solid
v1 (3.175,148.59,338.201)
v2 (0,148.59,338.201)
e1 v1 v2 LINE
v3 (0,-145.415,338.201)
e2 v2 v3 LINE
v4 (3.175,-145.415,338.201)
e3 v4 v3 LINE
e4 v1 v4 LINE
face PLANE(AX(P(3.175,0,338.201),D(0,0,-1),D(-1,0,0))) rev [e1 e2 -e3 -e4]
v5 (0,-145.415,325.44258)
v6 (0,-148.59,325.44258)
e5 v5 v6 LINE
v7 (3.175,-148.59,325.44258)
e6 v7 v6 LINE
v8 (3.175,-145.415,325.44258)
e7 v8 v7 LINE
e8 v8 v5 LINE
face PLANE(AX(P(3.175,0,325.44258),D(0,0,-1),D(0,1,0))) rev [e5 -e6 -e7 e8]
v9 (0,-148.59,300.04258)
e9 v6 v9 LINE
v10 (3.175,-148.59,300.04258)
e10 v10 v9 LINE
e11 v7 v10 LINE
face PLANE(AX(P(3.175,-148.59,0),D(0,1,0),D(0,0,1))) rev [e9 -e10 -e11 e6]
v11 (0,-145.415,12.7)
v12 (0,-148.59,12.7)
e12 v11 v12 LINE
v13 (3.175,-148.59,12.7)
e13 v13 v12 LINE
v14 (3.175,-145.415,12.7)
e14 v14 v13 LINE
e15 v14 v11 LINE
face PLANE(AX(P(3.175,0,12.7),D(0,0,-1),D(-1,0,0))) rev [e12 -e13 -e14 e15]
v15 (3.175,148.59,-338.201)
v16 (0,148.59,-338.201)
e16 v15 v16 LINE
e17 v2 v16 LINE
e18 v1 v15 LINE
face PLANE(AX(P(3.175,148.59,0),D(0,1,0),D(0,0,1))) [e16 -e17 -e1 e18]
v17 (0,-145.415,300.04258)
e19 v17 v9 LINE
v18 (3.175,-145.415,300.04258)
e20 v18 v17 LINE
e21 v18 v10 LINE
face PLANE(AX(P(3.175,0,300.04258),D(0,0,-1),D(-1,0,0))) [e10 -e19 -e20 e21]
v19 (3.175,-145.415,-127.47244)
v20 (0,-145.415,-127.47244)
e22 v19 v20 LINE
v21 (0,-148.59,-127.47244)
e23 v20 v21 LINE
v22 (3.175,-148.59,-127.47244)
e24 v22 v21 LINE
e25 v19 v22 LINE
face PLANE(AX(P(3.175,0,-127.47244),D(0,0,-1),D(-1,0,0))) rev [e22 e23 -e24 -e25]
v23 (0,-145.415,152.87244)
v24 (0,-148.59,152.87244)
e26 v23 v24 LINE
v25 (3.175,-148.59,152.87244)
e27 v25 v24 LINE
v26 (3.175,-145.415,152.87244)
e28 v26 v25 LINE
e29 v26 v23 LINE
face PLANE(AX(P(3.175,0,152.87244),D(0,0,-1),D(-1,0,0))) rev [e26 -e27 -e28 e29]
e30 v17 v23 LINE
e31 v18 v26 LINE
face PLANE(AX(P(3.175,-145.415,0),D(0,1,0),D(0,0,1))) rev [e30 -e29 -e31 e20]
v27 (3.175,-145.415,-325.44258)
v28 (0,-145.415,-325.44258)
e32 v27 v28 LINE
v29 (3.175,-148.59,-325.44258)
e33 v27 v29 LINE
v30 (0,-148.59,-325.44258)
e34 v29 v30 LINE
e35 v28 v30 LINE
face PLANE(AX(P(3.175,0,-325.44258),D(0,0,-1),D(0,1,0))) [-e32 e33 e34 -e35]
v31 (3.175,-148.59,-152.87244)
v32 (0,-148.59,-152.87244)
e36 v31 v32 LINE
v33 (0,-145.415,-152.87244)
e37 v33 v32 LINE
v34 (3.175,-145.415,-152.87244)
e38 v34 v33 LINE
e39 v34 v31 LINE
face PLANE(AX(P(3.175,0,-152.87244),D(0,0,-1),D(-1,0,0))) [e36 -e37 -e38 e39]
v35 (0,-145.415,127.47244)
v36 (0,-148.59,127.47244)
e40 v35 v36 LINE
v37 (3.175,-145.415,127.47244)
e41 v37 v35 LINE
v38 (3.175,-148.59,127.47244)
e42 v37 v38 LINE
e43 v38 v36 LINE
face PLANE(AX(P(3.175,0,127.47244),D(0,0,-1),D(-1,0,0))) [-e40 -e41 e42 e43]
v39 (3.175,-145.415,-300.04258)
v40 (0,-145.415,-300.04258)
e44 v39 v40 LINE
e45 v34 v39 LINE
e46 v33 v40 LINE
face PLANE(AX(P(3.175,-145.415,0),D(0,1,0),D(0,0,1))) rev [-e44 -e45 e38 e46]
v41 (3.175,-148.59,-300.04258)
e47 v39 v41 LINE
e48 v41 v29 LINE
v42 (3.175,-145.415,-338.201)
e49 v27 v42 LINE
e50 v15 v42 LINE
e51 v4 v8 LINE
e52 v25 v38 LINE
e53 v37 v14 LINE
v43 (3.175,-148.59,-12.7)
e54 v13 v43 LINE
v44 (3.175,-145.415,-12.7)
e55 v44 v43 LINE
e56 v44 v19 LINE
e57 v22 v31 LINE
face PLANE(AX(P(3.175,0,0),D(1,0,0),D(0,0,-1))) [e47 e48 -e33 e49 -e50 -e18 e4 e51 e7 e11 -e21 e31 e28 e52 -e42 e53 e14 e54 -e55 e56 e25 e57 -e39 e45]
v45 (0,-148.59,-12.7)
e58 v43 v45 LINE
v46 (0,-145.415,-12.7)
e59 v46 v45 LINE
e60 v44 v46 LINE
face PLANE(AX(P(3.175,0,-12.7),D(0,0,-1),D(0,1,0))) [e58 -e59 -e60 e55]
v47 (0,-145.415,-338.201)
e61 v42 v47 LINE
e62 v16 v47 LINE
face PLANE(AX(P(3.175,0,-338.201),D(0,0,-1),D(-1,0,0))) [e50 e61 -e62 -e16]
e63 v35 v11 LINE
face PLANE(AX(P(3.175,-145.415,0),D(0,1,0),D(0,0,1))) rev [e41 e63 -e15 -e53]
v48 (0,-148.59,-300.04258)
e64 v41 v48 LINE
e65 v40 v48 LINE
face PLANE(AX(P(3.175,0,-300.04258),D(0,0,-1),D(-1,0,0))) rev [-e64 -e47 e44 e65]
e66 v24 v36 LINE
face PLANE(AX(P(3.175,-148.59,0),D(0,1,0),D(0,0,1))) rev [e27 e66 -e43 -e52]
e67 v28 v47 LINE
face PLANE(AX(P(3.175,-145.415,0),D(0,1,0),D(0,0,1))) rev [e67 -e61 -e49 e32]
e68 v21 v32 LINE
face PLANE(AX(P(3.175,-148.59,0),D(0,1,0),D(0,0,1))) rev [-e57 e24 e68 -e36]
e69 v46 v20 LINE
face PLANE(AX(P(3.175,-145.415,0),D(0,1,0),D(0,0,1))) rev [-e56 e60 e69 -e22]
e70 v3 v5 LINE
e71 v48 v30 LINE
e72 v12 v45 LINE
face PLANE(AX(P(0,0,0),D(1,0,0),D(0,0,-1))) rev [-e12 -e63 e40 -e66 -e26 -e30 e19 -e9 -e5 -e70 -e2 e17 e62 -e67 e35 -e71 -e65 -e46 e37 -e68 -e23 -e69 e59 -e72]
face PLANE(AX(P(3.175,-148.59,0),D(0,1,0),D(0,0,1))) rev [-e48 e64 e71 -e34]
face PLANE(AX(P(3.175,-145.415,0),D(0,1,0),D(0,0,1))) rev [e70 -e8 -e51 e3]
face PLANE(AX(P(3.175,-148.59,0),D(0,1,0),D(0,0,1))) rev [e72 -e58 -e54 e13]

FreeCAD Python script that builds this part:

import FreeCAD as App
import Part
import Sketcher
from FreeCAD import Vector
Q = App.Units.Quantity

doc = App.newDocument("Part")
body = doc.addObject("PartDesign::Body", "Body")

sketch1 = body.newObject("Sketcher::SketchObject", "Sketch")
sketch1.AttachmentSupport = (doc.getObject("YZ_Plane"), [""])
sketch1.MapMode = "FlatFace"
sketch1.addGeometry(Part.LineSegment(Vector(-145.415, -300.04258, 0), Vector(-148.59, -300.04258, 0)), False)
sketch1.addGeometry(Part.LineSegment(Vector(-148.59, -300.04258, 0), Vector(-148.59, -325.44258, 0)), False)
sketch1.addGeometry(Part.LineSegment(Vector(-148.59, -325.44258, 0), Vector(-145.415, -325.44258, 0)), False)
sketch1.addGeometry(Part.LineSegment(Vector(-145.415, -325.44258, 0), Vector(-145.415, -338.201, 0)), False)
sketch1.addGeometry(Part.LineSegment(Vector(-145.415, -338.201, 0), Vector(148.59, -338.201, 0)), False)
sketch1.addGeometry(Part.LineSegment(Vector(148.59, -338.201, 0), Vector(148.59, 338.201, 0)), False)
sketch1.addGeometry(Part.LineSegment(Vector(148.59, 338.201, 0), Vector(-145.415, 338.201, 0)), False)
sketch1.addGeometry(Part.LineSegment(Vector(-145.415, 338.201, 0), Vector(-145.415, 325.44258, 0)), False)
sketch1.addGeometry(Part.LineSegment(Vector(-145.415, 325.44258, 0), Vector(-148.59, 325.44258, 0)), False)
sketch1.addGeometry(Part.LineSegment(Vector(-148.59, 325.44258, 0), Vector(-148.59, 300.04258, 0)), False)
sketch1.addGeometry(Part.LineSegment(Vector(-148.59, 300.04258, 0), Vector(-145.415, 300.04258, 0)), False)
sketch1.addGeometry(Part.LineSegment(Vector(-145.415, 300.04258, 0), Vector(-145.415, 152.87244, 0)), False)
sketch1.addGeometry(Part.LineSegment(Vector(-145.415, 152.87244, 0), Vector(-148.59, 152.87244, 0)), False)
sketch1.addGeometry(Part.LineSegment(Vector(-148.59, 152.87244, 0), Vector(-148.59, 127.47244, 0)), False)
sketch1.addGeometry(Part.LineSegment(Vector(-148.59, 127.47244, 0), Vector(-145.415, 127.47244, 0)), False)
sketch1.addGeometry(Part.LineSegment(Vector(-145.415, 127.47244, 0), Vector(-145.415, 12.7, 0)), False)
sketch1.addGeometry(Part.LineSegment(Vector(-145.415, 12.7, 0), Vector(-148.59, 12.7, 0)), False)
sketch1.addGeometry(Part.LineSegment(Vector(-148.59, 12.7, 0), Vector(-148.59, -12.7, 0)), False)
sketch1.addGeometry(Part.LineSegment(Vector(-148.59, -12.7, 0), Vector(-145.415, -12.7, 0)), False)
sketch1.addGeometry(Part.LineSegment(Vector(-145.415, -12.7, 0), Vector(-145.415, -127.47244, 0)), False)
sketch1.addGeometry(Part.LineSegment(Vector(-145.415, -127.47244, 0), Vector(-148.59, -127.47244, 0)), False)
sketch1.addGeometry(Part.LineSegment(Vector(-148.59, -127.47244, 0), Vector(-148.59, -152.87244, 0)), False)
sketch1.addGeometry(Part.LineSegment(Vector(-148.59, -152.87244, 0), Vector(-145.415, -152.87244, 0)), False)
sketch1.addGeometry(Part.LineSegment(Vector(-145.415, -152.87244, 0), Vector(-145.415, -300.04258, 0)), False)
sketch1.addConstraint(Sketcher.Constraint("Coincident", 0, 2, 1, 1))
sketch1.addConstraint(Sketcher.Constraint("Coincident", 1, 2, 2, 1))
sketch1.addConstraint(Sketcher.Constraint("Coincident", 2, 2, 3, 1))
sketch1.addConstraint(Sketcher.Constraint("Coincident", 3, 2, 4, 1))
sketch1.addConstraint(Sketcher.Constraint("Coincident", 4, 2, 5, 1))
sketch1.addConstraint(Sketcher.Constraint("Coincident", 5, 2, 6, 1))
sketch1.addConstraint(Sketcher.Constraint("Coincident", 6, 2, 7, 1))
sketch1.addConstraint(Sketcher.Constraint("Coincident", 7, 2, 8, 1))
sketch1.addConstraint(Sketcher.Constraint("Coincident", 8, 2, 9, 1))
sketch1.addConstraint(Sketcher.Constraint("Coincident", 9, 2, 10, 1))
sketch1.addConstraint(Sketcher.Constraint("Coincident", 10, 2, 11, 1))
sketch1.addConstraint(Sketcher.Constraint("Coincident", 11, 2, 12, 1))
sketch1.addConstraint(Sketcher.Constraint("Coincident", 12, 2, 13, 1))
sketch1.addConstraint(Sketcher.Constraint("Coincident", 13, 2, 14, 1))
sketch1.addConstraint(Sketcher.Constraint("Coincident", 14, 2, 15, 1))
sketch1.addConstraint(Sketcher.Constraint("Coincident", 15, 2, 16, 1))
sketch1.addConstraint(Sketcher.Constraint("Coincident", 16, 2, 17, 1))
sketch1.addConstraint(Sketcher.Constraint("Coincident", 17, 2, 18, 1))
sketch1.addConstraint(Sketcher.Constraint("Coincident", 18, 2, 19, 1))
sketch1.addConstraint(Sketcher.Constraint("Coincident", 19, 2, 20, 1))
sketch1.addConstraint(Sketcher.Constraint("Coincident", 20, 2, 21, 1))
sketch1.addConstraint(Sketcher.Constraint("Coincident", 21, 2, 22, 1))
sketch1.addConstraint(Sketcher.Constraint("Coincident", 22, 2, 23, 1))
sketch1.addConstraint(Sketcher.Constraint("Coincident", 23, 2, 0, 1))
sketch1.addConstraint(Sketcher.Constraint("Horizontal", 0))
sketch1.addConstraint(Sketcher.Constraint("Vertical", 1))
sketch1.addConstraint(Sketcher.Constraint("Horizontal", 2))
sketch1.addConstraint(Sketcher.Constraint("Vertical", 3))
sketch1.addConstraint(Sketcher.Constraint("Horizontal", 4))
sketch1.addConstraint(Sketcher.Constraint("Vertical", 5))
sketch1.addConstraint(Sketcher.Constraint("Horizontal", 6))
sketch1.addConstraint(Sketcher.Constraint("Vertical", 7))
sketch1.addConstraint(Sketcher.Constraint("Horizontal", 8))
sketch1.addConstraint(Sketcher.Constraint("Vertical", 9))
sketch1.addConstraint(Sketcher.Constraint("Horizontal", 10))
sketch1.addConstraint(Sketcher.Constraint("Vertical", 11))
sketch1.addConstraint(Sketcher.Constraint("Horizontal", 12))
sketch1.addConstraint(Sketcher.Constraint("Vertical", 13))
sketch1.addConstraint(Sketcher.Constraint("Horizontal", 14))
sketch1.addConstraint(Sketcher.Constraint("Vertical", 15))
sketch1.addConstraint(Sketcher.Constraint("Horizontal", 16))
sketch1.addConstraint(Sketcher.Constraint("Vertical", 17))
sketch1.addConstraint(Sketcher.Constraint("Horizontal", 18))
sketch1.addConstraint(Sketcher.Constraint("Vertical", 19))
sketch1.addConstraint(Sketcher.Constraint("Horizontal", 20))
sketch1.addConstraint(Sketcher.Constraint("Vertical", 21))
sketch1.addConstraint(Sketcher.Constraint("Horizontal", 22))
sketch1.addConstraint(Sketcher.Constraint("Vertical", 23))
sketch1.addConstraint(Sketcher.Constraint("Symmetric", 3, 2, 6, 2, -1))
sketch1.addConstraint(Sketcher.Constraint("Symmetric", 1, 2, 8, 2, -1))
sketch1.addConstraint(Sketcher.Constraint("Symmetric", 15, 2, 18, 2, -1))
sketch1.addConstraint(Sketcher.Constraint("Symmetric", 13, 2, 20, 2, -1))
sketch1.addConstraint(Sketcher.Constraint("Symmetric", 11, 2, 22, 2, -1))
sketch1.addConstraint(Sketcher.Constraint("Vertical", 7, 2, 10, 2))
sketch1.addConstraint(Sketcher.Constraint("Vertical", 9, 2, 12, 2))
sketch1.addConstraint(Sketcher.Constraint("Vertical", 11, 2, 14, 2))
sketch1.addConstraint(Sketcher.Constraint("Vertical", 13, 2, 16, 2))
sketch1.addConstraint(Sketcher.Constraint("Equal", 1, 9))
sketch1.addConstraint(Sketcher.Constraint("Equal", 9, 13))
sketch1.addConstraint(Sketcher.Constraint("Equal", 13, 17))
sketch1.addConstraint(Sketcher.Constraint("DistanceY", 1, 2, 1, 1, Q("1 in")))
sketch1.addConstraint(Sketcher.Constraint("DistanceY", 5, 1, 5, 2, Q("26.63 in")))
sketch1.addConstraint(Sketcher.Constraint("DistanceX", 1, 2, 4, 2, Q("11.7 in")))
sketch1.addConstraint(Sketcher.Constraint("DistanceX", 0, 2, 0, 1, Q("0.125 in")))
sketch1.addConstraint(Sketcher.Constraint("DistanceX", 0, 2, -1, 1, Q("5.85 in")))
sketch1.addConstraint(Sketcher.Constraint("DistanceY", 3, 2, 3, 1, Q("0.5023 in")))
sketch1.addConstraint(Sketcher.Constraint("DistanceY", 11, 2, 11, 1, Q("5.7941 in")))
pad1 = body.newObject("PartDesign::Pad", "Pad")
pad1.Profile = sketch1
pad1.Length = Q("0.125 in")

doc.recompute()
